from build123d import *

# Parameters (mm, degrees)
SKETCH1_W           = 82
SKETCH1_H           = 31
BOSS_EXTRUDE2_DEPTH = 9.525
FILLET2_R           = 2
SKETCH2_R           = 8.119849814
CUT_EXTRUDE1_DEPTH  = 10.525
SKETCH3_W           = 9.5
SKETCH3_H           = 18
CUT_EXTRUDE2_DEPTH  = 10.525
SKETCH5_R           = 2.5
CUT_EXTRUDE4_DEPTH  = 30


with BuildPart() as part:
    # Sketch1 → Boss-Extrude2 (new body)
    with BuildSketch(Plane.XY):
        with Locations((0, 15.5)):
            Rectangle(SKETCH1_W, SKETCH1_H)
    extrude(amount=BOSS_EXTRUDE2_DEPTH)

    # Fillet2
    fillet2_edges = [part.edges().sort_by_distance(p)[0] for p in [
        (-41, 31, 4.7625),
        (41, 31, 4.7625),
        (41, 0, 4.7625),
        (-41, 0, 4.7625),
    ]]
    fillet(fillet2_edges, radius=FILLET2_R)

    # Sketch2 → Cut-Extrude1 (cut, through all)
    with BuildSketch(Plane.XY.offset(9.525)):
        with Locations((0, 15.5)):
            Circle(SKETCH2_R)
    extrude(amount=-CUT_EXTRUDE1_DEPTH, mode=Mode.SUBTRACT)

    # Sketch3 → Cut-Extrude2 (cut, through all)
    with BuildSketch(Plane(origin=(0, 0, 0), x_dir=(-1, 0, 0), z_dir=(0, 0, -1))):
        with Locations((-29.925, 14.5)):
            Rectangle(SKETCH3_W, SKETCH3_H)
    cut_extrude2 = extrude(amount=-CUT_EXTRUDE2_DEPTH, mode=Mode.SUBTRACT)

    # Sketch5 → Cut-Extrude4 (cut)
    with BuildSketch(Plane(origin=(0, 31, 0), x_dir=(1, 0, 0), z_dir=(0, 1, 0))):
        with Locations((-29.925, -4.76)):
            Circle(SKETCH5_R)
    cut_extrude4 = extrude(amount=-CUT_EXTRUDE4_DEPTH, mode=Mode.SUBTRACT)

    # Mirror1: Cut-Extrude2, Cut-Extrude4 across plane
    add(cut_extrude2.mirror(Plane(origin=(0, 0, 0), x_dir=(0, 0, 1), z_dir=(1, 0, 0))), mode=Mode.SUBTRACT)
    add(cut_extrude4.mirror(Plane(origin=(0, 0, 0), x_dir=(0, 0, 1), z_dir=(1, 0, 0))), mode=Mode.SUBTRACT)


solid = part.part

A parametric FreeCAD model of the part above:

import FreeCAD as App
import Part
import Sketcher
from FreeCAD import Vector
Q = App.Units.Quantity


def edges_at(feature, points):
    """Names of the edges that pass closest to the given points."""
    edges = feature.Shape.Edges
    near = lambda p: min(range(len(edges)), key=lambda i: edges[i].distToShape(Part.Vertex(*p))[0])
    return sorted({f"Edge{near(p) + 1}" for p in points})

doc = App.newDocument("Part")
params = doc.addObject("Spreadsheet::Sheet", "Params")
for row, (alias, value) in enumerate([
    ("sketch1_width", "82 mm"),
    ("sketch1_height", "31 mm"),
    ("pad1_length", "9.525 mm"),
    ("fillet_radius", "2 mm"),
    ("sketch3_height", "18 mm"),
    ("sketch3_width", "9.5 mm"),
    ("sketch4_diameter", "5 mm"),
    ("pocket3_length", "30 mm"),
], start=1):
    params.set(f"A{row}", alias)
    params.set(f"B{row}", "=" + value)
    params.setAlias(f"B{row}", alias)

body = doc.addObject("PartDesign::Body", "Body")

# Sketch on XY plane
sketch1 = body.newObject("Sketcher::SketchObject", "Sketch")
sketch1.AttachmentSupport = (doc.getObject("XY_Plane"), [""])
sketch1.MapMode = "FlatFace"
sketch1.addGeometry(Part.LineSegment(Vector(-41, 31, 0), Vector(-41, 0, 0)), False)
sketch1.addGeometry(Part.LineSegment(Vector(-41, 0, 0), Vector(41, 0, 0)), False)
sketch1.addGeometry(Part.LineSegment(Vector(41, 0, 0), Vector(41, 31, 0)), False)
sketch1.addGeometry(Part.LineSegment(Vector(41, 31, 0), Vector(-41, 31, 0)), False)
sketch1.addConstraint(Sketcher.Constraint("Coincident", 0, 2, 1, 1))
sketch1.addConstraint(Sketcher.Constraint("Coincident", 1, 2, 2, 1))
sketch1.addConstraint(Sketcher.Constraint("Coincident", 2, 2, 3, 1))
sketch1.addConstraint(Sketcher.Constraint("Coincident", 3, 2, 0, 1))
sketch1.addConstraint(Sketcher.Constraint("Vertical", 0))
sketch1.addConstraint(Sketcher.Constraint("Horizontal", 1))
sketch1.addConstraint(Sketcher.Constraint("Vertical", 2))
sketch1.addConstraint(Sketcher.Constraint("Horizontal", 3))
sketch1.addConstraint(Sketcher.Constraint("Symmetric", 0, 2, 1, 2, -1, 1))
sketch1.addConstraint(Sketcher.Constraint("DistanceX", 1, 1, 1, 2, Q("82 mm")))
sketch1.addConstraint(Sketcher.Constraint("DistanceY", 0, 2, 0, 1, Q("31 mm")))
sketch1.setExpression("Constraints[9]", "Params.sketch1_width")
sketch1.setExpression("Constraints[10]", "Params.sketch1_height")
pad1 = body.newObject("PartDesign::Pad", "Pad")
pad1.Profile = sketch1
pad1.setExpression("Length", "Params.pad1_length")
doc.recompute()

fillet = body.newObject("PartDesign::Fillet", "Fillet")
fillet.Base = (pad1, edges_at(pad1, [
    (-41, 31, 4.763),
    (41, 31, 4.763),
    (41, 0, 4.763),
    (-41, 0, 4.763),
]))
fillet.setExpression("Radius", "Params.fillet_radius")

# Sketch on XY plane
sketch2 = body.newObject("Sketcher::SketchObject", "Sketch001")
sketch2.AttachmentSupport = (doc.getObject("XY_Plane"), [""])
sketch2.MapMode = "FlatFace"
sketch2.AttachmentOffset = App.Placement(Vector(0, 0, 9.525), App.Rotation())
sketch2.addGeometry(Part.Circle(Vector(0, 16, 0), Vector(0, 0, 1), 8), False)
sketch2.addConstraint(Sketcher.Constraint("PointOnObject", 0, 3, -2))
sketch2.addConstraint(Sketcher.Constraint("Diameter", 0, Q("16.2397 mm")))
sketch2.addConstraint(Sketcher.Constraint("DistanceY", -1, 1, 0, 3, Q("15.5 mm")))
pocket1 = body.newObject("PartDesign::Pocket", "Pocket")
pocket1.Profile = sketch2
pocket1.Type = "ThroughAll"

# Sketch on XY plane
sketch3 = body.newObject("Sketcher::SketchObject", "Sketch002")
sketch3.AttachmentSupport = (doc.getObject("XY_Plane"), [""])
sketch3.MapMode = "FlatFace"
sketch3.addGeometry(Part.LineSegment(Vector(35, 24, 0), Vector(35, 6, 0)), False)
sketch3.addGeometry(Part.LineSegment(Vector(35, 6, 0), Vector(25, 6, 0)), False)
sketch3.addGeometry(Part.LineSegment(Vector(25, 6, 0), Vector(25, 24, 0)), False)
sketch3.addGeometry(Part.LineSegment(Vector(25, 24, 0), Vector(35, 24, 0)), False)
sketch3.addConstraint(Sketcher.Constraint("Coincident", 0, 2, 1, 1))
sketch3.addConstraint(Sketcher.Constraint("Coincident", 1, 2, 2, 1))
sketch3.addConstraint(Sketcher.Constraint("Coincident", 2, 2, 3, 1))
sketch3.addConstraint(Sketcher.Constraint("Coincident", 3, 2, 0, 1))
sketch3.addConstraint(Sketcher.Constraint("Vertical", 0))
sketch3.addConstraint(Sketcher.Constraint("Horizontal", 1))
sketch3.addConstraint(Sketcher.Constraint("Vertical", 2))
sketch3.addConstraint(Sketcher.Constraint("Horizontal", 3))
sketch3.addConstraint(Sketcher.Constraint("DistanceY", 0, 2, 0, 1, Q("18 mm")))
sketch3.addConstraint(Sketcher.Constraint("DistanceX", 1, 2, 1, 1, Q("9.5 mm")))
sketch3.addConstraint(Sketcher.Constraint("DistanceY", -1, 1, 0, 2, Q("5.5 mm")))
sketch3.addConstraint(Sketcher.Constraint("DistanceX", -1, 1, 0, 2, Q("34.675 mm")))
sketch3.setExpression("Constraints[8]", "Params.sketch3_height")
sketch3.setExpression("Constraints[9]", "Params.sketch3_width")
pocket2 = body.newObject("PartDesign::Pocket", "Pocket001")
pocket2.Profile = sketch3
pocket2.Type = "ThroughAll"
pocket2.Reversed = True

# Sketch on XZ plane
sketch4 = body.newObject("Sketcher::SketchObject", "Sketch003")
sketch4.AttachmentSupport = (doc.getObject("XZ_Plane"), [""])
sketch4.MapMode = "FlatFace"
sketch4.AttachmentOffset = App.Placement(Vector(0, 0, -31), App.Rotation())
sketch4.addGeometry(Part.Circle(Vector(-29.9, 4.8, 0), Vector(0, 0, 1), 2.5), False)
sketch4.addConstraint(Sketcher.Constraint("Diameter", 0, Q("5 mm")))
sketch4.addConstraint(Sketcher.Constraint("DistanceY", -1, 1, 0, 3, Q("4.76 mm")))
sketch4.addConstraint(Sketcher.Constraint("DistanceX", 0, 3, -1, 1, Q("29.925 mm")))
sketch4.setExpression("Constraints[0]", "Params.sketch4_diameter")
pocket3 = body.newObject("PartDesign::Pocket", "Pocket002")
pocket3.Profile = sketch4
pocket3.setExpression("Length", "Params.pocket3_length")
pocket3.Reversed = True
doc.recompute()

mirrored = body.newObject("PartDesign::Mirrored", "Mirrored")
mirrored.Originals = [pocket2, pocket3]
mirrored.MirrorPlane = (doc.getObject("YZ_Plane"), [""])
body.Tip = mirrored

doc.recompute()
